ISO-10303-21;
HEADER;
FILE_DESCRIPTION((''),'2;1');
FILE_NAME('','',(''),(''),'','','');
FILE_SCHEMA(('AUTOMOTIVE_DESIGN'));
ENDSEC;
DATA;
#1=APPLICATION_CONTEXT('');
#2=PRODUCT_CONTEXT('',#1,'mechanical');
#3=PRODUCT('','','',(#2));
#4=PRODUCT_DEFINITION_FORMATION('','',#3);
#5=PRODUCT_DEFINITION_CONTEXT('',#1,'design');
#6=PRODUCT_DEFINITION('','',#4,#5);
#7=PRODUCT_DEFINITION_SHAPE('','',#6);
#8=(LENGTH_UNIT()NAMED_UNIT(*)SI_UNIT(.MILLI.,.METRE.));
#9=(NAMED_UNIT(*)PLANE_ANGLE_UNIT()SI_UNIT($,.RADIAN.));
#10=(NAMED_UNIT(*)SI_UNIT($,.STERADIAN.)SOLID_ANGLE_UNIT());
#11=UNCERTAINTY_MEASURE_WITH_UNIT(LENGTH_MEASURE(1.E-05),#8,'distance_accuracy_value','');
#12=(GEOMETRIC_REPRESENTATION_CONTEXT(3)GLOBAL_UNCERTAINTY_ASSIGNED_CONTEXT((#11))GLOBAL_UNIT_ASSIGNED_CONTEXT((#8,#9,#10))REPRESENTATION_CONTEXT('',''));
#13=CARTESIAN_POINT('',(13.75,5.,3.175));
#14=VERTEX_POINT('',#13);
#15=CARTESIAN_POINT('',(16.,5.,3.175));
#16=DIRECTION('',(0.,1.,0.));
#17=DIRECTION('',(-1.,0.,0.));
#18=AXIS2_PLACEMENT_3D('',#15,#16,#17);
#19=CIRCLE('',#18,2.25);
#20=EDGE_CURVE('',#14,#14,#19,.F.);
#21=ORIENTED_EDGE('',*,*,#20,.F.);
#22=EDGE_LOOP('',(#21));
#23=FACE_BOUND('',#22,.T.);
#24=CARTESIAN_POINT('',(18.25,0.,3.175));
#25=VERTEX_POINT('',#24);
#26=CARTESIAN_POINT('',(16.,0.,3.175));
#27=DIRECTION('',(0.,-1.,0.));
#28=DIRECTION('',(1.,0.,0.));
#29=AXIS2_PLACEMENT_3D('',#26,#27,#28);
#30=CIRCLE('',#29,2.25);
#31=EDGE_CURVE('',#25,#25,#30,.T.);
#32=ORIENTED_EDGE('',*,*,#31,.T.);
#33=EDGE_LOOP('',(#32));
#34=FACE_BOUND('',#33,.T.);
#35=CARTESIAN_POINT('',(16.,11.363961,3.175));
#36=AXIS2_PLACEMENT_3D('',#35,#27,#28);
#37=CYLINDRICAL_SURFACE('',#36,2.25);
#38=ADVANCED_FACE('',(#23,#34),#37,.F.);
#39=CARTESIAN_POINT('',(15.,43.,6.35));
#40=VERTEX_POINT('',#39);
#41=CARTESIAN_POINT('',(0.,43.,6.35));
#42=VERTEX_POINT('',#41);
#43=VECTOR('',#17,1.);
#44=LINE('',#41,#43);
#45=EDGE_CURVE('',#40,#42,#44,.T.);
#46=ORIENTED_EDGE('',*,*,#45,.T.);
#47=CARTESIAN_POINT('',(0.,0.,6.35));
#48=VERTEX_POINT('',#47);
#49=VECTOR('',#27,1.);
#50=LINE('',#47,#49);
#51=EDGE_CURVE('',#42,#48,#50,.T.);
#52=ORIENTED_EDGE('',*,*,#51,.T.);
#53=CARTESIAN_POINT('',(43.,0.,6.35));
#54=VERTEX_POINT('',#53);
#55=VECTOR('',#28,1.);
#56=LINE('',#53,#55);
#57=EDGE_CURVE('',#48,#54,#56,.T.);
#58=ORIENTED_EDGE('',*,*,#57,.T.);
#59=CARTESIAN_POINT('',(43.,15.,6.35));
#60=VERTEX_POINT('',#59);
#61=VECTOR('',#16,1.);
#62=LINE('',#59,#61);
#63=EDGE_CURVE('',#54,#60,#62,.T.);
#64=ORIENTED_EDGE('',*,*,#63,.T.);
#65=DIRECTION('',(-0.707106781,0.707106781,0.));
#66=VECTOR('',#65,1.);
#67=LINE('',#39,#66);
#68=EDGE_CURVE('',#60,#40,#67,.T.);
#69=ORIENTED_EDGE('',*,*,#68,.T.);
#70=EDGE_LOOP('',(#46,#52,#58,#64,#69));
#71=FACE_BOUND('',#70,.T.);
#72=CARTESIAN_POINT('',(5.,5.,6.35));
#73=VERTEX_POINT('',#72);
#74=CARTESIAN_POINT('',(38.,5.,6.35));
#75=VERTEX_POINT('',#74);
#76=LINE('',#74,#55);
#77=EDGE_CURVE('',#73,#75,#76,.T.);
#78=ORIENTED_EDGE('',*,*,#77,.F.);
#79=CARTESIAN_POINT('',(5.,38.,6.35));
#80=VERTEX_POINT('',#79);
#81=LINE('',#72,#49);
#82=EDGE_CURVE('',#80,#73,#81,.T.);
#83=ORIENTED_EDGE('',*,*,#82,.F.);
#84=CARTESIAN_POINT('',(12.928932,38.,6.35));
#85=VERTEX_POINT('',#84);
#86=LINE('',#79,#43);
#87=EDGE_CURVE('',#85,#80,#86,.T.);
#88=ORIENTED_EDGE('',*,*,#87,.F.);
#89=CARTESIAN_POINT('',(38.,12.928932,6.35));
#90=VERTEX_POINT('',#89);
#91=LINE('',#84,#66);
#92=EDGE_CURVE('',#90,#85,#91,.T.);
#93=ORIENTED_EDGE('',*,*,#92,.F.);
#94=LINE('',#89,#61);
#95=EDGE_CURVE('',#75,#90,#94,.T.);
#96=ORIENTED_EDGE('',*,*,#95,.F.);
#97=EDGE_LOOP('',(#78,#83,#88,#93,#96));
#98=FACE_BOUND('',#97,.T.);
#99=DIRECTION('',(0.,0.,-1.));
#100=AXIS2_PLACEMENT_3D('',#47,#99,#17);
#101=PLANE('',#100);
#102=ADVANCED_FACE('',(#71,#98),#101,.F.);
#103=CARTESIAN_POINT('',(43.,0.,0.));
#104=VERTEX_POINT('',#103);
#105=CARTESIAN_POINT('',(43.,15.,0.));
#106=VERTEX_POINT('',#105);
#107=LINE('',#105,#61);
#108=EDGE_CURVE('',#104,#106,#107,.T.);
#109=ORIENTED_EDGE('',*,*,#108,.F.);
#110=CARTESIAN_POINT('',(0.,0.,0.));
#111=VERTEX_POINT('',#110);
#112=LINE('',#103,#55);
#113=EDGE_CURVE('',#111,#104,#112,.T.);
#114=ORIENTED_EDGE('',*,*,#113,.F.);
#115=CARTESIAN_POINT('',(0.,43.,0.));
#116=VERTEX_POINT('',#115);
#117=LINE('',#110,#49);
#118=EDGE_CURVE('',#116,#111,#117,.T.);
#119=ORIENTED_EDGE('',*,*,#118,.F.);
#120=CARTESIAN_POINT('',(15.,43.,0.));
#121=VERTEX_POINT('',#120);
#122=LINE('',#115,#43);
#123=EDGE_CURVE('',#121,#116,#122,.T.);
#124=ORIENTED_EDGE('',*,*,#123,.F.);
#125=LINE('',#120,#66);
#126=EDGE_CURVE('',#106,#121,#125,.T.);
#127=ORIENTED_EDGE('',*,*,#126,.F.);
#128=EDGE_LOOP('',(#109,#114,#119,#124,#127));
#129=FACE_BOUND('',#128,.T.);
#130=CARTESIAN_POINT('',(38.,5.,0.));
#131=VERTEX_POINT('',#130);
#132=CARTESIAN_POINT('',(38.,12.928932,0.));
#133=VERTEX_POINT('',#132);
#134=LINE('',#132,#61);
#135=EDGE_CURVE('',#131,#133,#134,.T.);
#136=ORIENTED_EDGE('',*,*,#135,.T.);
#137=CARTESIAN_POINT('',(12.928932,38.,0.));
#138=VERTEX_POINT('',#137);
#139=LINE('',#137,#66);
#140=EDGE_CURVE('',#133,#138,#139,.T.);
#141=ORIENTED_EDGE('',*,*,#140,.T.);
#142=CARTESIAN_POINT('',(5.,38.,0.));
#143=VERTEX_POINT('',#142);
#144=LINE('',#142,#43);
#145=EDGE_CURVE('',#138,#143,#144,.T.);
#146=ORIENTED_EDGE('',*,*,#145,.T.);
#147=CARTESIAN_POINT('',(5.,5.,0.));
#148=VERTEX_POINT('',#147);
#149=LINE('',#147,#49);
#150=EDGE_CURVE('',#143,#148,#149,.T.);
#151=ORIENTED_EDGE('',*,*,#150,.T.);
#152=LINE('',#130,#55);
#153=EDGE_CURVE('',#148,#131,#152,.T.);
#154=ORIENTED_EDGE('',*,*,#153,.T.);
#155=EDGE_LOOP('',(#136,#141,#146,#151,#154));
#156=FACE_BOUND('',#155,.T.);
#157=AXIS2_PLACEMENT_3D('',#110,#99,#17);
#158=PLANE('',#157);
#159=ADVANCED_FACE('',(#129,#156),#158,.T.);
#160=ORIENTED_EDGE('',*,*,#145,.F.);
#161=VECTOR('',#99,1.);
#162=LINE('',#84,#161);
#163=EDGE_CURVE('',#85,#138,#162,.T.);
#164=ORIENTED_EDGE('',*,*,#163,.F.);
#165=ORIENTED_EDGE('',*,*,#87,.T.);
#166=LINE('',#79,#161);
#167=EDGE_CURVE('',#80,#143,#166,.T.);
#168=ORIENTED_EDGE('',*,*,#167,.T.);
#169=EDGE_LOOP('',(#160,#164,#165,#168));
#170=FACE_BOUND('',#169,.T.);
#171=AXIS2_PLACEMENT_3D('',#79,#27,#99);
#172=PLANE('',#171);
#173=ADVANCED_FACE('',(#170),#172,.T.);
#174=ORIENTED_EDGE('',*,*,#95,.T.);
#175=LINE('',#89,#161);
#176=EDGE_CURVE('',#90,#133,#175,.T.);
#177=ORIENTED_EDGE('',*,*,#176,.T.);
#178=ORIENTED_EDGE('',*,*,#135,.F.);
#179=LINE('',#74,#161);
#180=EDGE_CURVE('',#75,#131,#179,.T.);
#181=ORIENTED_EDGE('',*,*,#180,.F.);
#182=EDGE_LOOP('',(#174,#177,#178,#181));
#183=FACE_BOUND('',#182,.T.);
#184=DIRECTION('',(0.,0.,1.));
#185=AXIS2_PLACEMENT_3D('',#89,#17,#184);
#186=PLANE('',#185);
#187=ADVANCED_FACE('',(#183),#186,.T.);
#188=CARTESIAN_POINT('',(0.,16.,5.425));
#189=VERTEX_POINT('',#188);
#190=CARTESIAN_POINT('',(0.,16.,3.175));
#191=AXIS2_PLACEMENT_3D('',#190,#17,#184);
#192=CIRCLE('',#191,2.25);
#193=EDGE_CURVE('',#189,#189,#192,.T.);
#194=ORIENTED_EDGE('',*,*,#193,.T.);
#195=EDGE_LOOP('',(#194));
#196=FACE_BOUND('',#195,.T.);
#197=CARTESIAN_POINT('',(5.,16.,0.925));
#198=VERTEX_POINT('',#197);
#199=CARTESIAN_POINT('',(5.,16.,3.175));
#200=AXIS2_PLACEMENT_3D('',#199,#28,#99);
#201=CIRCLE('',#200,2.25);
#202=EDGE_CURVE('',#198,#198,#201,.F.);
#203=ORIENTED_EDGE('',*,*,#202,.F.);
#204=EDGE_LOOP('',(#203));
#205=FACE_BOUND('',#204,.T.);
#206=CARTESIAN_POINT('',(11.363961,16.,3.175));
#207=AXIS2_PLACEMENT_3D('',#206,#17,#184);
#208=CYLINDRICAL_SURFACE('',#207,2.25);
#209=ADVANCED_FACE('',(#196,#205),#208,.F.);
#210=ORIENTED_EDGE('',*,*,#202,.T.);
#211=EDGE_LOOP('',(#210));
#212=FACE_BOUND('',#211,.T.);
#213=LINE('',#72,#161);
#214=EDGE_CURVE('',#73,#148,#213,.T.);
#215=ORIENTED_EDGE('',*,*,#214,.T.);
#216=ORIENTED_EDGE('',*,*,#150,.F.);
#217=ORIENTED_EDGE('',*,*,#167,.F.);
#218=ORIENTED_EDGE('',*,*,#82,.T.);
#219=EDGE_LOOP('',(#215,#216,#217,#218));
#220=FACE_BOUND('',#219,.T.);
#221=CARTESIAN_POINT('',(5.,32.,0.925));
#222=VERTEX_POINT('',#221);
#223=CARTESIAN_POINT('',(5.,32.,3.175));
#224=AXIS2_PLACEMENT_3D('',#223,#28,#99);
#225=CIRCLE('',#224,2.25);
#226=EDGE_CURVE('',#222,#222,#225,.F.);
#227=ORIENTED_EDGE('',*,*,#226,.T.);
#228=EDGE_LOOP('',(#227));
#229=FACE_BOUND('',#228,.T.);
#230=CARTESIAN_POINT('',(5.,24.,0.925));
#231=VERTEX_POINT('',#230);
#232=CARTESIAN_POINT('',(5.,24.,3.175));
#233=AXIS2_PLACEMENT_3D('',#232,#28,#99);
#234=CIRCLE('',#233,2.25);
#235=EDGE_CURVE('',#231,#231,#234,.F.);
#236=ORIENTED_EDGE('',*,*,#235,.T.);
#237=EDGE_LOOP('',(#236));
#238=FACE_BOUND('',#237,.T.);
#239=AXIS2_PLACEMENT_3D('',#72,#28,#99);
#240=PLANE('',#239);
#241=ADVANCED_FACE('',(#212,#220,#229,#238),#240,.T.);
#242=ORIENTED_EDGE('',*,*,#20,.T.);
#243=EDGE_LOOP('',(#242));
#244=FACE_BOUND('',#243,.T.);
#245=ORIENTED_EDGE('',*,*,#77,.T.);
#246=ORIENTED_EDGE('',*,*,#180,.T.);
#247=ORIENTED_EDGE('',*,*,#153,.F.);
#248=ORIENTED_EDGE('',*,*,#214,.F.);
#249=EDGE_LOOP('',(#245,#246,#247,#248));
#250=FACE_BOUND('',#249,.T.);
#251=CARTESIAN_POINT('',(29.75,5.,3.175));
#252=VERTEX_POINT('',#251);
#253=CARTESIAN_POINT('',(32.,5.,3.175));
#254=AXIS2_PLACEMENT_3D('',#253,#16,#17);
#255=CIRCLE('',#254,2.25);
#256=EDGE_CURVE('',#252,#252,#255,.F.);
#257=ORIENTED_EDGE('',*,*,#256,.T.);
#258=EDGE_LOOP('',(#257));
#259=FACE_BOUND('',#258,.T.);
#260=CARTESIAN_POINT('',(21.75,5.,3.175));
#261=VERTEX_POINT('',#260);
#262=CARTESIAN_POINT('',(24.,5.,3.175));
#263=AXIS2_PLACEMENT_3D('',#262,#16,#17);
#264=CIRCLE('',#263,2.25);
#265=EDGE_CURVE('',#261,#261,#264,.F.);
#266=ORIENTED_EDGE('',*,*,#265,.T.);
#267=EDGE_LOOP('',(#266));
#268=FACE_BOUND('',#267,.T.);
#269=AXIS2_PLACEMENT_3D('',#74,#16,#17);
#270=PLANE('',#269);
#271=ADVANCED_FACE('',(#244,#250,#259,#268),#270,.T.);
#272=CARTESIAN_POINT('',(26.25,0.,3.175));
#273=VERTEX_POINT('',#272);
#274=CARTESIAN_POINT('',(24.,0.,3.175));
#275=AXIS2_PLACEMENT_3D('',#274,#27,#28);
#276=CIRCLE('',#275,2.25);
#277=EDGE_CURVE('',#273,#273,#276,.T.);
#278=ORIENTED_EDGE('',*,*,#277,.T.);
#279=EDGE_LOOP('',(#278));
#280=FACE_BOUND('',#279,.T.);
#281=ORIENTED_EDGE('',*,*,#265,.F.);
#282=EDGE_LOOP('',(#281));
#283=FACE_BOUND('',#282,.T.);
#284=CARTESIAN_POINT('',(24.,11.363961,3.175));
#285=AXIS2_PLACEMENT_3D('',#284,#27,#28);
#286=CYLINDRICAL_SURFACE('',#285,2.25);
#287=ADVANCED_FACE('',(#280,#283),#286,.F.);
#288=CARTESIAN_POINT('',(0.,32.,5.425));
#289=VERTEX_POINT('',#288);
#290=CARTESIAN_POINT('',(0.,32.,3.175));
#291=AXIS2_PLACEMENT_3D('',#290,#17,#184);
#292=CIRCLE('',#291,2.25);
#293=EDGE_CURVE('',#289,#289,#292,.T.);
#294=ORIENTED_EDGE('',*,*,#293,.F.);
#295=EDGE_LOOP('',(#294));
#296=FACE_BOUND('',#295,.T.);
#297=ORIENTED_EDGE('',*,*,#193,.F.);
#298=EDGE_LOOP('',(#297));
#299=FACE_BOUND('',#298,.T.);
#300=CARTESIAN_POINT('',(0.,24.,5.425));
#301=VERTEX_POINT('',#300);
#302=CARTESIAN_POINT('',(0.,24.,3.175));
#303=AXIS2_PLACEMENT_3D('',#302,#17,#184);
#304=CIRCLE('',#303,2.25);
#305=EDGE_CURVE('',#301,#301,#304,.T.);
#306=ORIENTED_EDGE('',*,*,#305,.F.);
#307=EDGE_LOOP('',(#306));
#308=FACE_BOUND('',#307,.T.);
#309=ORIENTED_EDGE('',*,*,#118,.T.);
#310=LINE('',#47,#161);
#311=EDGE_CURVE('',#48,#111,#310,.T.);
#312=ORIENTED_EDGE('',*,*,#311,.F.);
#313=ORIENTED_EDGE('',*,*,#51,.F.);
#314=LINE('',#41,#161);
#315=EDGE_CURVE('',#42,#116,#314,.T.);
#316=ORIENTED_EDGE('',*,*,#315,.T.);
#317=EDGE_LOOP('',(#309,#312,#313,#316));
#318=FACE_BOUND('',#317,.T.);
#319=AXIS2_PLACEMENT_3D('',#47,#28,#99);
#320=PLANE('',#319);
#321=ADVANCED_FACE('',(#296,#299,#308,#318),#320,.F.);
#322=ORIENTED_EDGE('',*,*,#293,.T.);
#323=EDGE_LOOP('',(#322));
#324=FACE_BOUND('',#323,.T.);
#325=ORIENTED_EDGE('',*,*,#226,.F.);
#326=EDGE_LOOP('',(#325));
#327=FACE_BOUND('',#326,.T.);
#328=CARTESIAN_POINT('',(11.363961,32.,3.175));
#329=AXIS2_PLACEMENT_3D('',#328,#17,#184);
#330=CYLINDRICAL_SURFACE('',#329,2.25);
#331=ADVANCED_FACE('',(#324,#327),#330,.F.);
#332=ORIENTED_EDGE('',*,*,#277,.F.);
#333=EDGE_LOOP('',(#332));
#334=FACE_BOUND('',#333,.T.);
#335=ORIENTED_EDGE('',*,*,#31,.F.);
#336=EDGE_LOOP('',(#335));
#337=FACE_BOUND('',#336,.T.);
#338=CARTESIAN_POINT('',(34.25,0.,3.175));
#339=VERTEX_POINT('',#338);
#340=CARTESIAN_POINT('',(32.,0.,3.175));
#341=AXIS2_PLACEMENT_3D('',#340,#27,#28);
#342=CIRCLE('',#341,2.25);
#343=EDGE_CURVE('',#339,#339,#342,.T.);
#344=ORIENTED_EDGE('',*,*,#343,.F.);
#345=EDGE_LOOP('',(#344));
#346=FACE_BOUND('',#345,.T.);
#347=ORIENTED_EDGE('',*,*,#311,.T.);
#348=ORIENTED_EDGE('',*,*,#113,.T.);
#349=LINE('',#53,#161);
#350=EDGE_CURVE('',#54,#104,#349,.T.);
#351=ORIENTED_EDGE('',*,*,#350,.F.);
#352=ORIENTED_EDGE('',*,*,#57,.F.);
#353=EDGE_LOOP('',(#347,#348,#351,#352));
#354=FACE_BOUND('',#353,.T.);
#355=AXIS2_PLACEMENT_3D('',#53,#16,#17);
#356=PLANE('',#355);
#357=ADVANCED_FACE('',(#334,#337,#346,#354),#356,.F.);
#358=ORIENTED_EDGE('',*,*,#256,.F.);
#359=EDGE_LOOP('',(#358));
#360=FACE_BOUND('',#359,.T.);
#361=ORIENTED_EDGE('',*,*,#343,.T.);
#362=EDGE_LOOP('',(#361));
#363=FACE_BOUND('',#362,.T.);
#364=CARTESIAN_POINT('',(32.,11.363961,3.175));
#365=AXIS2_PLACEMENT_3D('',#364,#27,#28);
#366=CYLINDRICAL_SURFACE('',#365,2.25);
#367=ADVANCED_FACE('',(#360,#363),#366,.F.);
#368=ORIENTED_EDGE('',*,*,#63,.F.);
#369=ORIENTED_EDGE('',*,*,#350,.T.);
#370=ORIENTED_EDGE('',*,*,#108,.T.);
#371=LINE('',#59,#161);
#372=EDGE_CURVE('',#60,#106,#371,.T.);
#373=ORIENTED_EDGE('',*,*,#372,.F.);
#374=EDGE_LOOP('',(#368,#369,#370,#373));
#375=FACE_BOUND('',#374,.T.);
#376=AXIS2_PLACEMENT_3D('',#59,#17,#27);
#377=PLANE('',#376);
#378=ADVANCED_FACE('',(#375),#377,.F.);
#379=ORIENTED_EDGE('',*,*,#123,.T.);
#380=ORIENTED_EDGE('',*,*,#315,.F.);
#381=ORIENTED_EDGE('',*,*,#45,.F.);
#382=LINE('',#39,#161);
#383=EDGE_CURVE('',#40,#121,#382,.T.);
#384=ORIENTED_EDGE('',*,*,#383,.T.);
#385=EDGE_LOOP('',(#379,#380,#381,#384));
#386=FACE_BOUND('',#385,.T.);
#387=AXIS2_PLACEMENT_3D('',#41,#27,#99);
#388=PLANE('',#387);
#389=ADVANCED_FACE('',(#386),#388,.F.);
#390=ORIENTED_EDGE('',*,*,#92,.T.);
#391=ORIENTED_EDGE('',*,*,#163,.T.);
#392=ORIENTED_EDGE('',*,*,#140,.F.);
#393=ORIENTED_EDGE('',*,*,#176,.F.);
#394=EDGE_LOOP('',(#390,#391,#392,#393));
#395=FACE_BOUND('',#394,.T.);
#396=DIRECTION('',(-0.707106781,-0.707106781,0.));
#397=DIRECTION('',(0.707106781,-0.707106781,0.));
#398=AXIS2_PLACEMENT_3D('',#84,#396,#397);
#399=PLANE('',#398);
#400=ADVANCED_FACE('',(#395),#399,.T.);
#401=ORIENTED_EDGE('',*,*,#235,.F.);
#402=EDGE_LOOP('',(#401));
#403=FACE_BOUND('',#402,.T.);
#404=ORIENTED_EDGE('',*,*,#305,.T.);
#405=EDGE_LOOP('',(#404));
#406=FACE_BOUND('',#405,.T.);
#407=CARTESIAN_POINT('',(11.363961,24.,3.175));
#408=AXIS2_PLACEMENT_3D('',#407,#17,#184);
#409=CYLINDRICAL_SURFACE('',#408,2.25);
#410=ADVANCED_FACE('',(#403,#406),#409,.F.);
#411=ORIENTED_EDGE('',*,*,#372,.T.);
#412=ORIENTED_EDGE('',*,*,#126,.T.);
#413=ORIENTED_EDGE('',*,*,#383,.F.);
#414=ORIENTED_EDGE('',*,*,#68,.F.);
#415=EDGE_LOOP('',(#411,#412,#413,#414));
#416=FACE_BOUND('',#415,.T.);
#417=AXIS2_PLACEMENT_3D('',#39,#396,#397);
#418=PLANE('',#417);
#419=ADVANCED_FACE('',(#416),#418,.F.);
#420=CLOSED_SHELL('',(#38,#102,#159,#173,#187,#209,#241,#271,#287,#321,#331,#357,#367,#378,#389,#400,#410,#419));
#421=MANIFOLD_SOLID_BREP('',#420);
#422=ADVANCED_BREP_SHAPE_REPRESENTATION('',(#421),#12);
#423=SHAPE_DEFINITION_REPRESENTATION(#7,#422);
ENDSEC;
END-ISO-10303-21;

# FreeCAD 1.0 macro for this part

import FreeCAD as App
import Part
import Sketcher
Q = App.Units.Quantity

doc = App.newDocument("Part")
body = doc.addObject("PartDesign::Body", "Body")

sketch1 = body.newObject("Sketcher::SketchObject", "Sketch")
sketch1.AttachmentSupport = (doc.getObject("XY_Plane"), [""])
sketch1.MapMode = "FlatFace"
sketch1.addGeometry([
    Part.LineSegment(App.Vector(0, 43, 0), App.Vector(0, 0, 0)),
    Part.LineSegment(App.Vector(0, 0, 0), App.Vector(43, 0, 0)),
    Part.LineSegment(App.Vector(43, 0, 0), App.Vector(43, 15, 0)),
    Part.LineSegment(App.Vector(43, 15, 0), App.Vector(15, 43, 0)),
    Part.LineSegment(App.Vector(15, 43, 0), App.Vector(0, 43, 0)),
    Part.LineSegment(App.Vector(38, 5, 0), App.Vector(5, 5, 0)),
    Part.LineSegment(App.Vector(5, 5, 0), App.Vector(5, 38, 0)),
    Part.LineSegment(App.Vector(5, 38, 0), App.Vector(13, 38, 0)),
    Part.LineSegment(App.Vector(13, 38, 0), App.Vector(38, 13, 0)),
    Part.LineSegment(App.Vector(38, 13, 0), App.Vector(38, 5, 0)),
], False)
sketch1.addConstraint([
    Sketcher.Constraint("Coincident", 0, 2, 1, 1),
    Sketcher.Constraint("Coincident", 1, 2, 2, 1),
    Sketcher.Constraint("Coincident", 2, 2, 3, 1),
    Sketcher.Constraint("Coincident", 3, 2, 4, 1),
    Sketcher.Constraint("Coincident", 4, 2, 0, 1),
    Sketcher.Constraint("Coincident", 5, 2, 6, 1),
    Sketcher.Constraint("Coincident", 6, 2, 7, 1),
    Sketcher.Constraint("Coincident", 7, 2, 8, 1),
    Sketcher.Constraint("Coincident", 8, 2, 9, 1),
    Sketcher.Constraint("Coincident", 9, 2, 5, 1),
    Sketcher.Constraint("Vertical", 0),
    Sketcher.Constraint("Horizontal", 1),
    Sketcher.Constraint("Vertical", 2),
    Sketcher.Constraint("Horizontal", 4),
    Sketcher.Constraint("Horizontal", 5),
    Sketcher.Constraint("Vertical", 6),
    Sketcher.Constraint("Horizontal", 7),
    Sketcher.Constraint("Vertical", 9),
    Sketcher.Constraint("Coincident", 0, 2, -1, 1),
    Sketcher.Constraint("Parallel", 3, 8),
    Sketcher.Constraint("Equal", 1, 0),
    Sketcher.Constraint("Equal", 4, 2),
    Sketcher.Constraint("Equal", 5, 6),
    Sketcher.Constraint("DistanceX", 1, 1, 1, 2, Q("43 mm")),
    Sketcher.Constraint("DistanceX", 4, 2, 4, 1, Q("15 mm")),
    Sketcher.Constraint("DistanceX", 5, 2, 5, 1, Q("33 mm")),
    Sketcher.Constraint("DistanceX", -1, 1, 5, 2, Q("5 mm")),
    Sketcher.Constraint("DistanceY", -1, 1, 5, 2, Q("5 mm")),
    Sketcher.Constraint("DistanceX", 7, 1, 7, 2, Q("7.928932 mm")),
])
pad1 = body.newObject("PartDesign::Pad", "Pad")
pad1.Profile = sketch1
pad1.Length = 6.35

sketch2 = body.newObject("Sketcher::SketchObject", "Sketch001")
sketch2.AttachmentSupport = (doc.getObject("XZ_Plane"), [""])
sketch2.MapMode = "FlatFace"
sketch2.addGeometry([
    Part.Circle(App.Vector(16, 3.2, 0), App.Vector(0, 0, 1), 2.2),
    Part.Circle(App.Vector(24, 3.2, 0), App.Vector(0, 0, 1), 2.2),
    Part.Circle(App.Vector(32, 3.2, 0), App.Vector(0, 0, 1), 2.2),
], False)
sketch2.addConstraint([
    Sketcher.Constraint("Equal", 0, 1),
    Sketcher.Constraint("Equal", 1, 2),
    Sketcher.Constraint("Horizontal", 0, 3, 1, 3),
    Sketcher.Constraint("Horizontal", 1, 3, 2, 3),
    Sketcher.Constraint("Diameter", 0, Q("4.5 mm")),
    Sketcher.Constraint("DistanceX", -1, 1, 0, 3, Q("16 mm")),
    Sketcher.Constraint("DistanceX", -1, 1, 1, 3, Q("24 mm")),
    Sketcher.Constraint("DistanceX", -1, 1, 2, 3, Q("32 mm")),
    Sketcher.Constraint("DistanceY", -1, 1, 0, 3, Q("3.175 mm")),
])
pocket1 = body.newObject("PartDesign::Pocket", "Pocket")
pocket1.Profile = sketch2
pocket1.Length = 5

sketch3 = body.newObject("Sketcher::SketchObject", "Sketch002")
sketch3.AttachmentSupport = (doc.getObject("YZ_Plane"), [""])
sketch3.MapMode = "FlatFace"
sketch3.addGeometry([
    Part.Circle(App.Vector(16, 3.2, 0), App.Vector(0, 0, 1), 2.2),
    Part.Circle(App.Vector(24, 3.2, 0), App.Vector(0, 0, 1), 2.2),
    Part.Circle(App.Vector(32, 3.2, 0), App.Vector(0, 0, 1), 2.2),
], False)
sketch3.addConstraint([
    Sketcher.Constraint("Equal", 0, 1),
    Sketcher.Constraint("Equal", 1, 2),
    Sketcher.Constraint("Horizontal", 0, 3, 1, 3),
    Sketcher.Constraint("Horizontal", 1, 3, 2, 3),
    Sketcher.Constraint("Diameter", 0, Q("4.5 mm")),
    Sketcher.Constraint("DistanceX", -1, 1, 0, 3, Q("16 mm")),
    Sketcher.Constraint("DistanceX", -1, 1, 1, 3, Q("24 mm")),
    Sketcher.Constraint("DistanceX", -1, 1, 2, 3, Q("32 mm")),
    Sketcher.Constraint("DistanceY", -1, 1, 0, 3, Q("3.175 mm")),
])
pocket2 = body.newObject("PartDesign::Pocket", "Pocket001")
pocket2.Profile = sketch3
pocket2.Length = 5
pocket2.Reversed = True

doc.recompute()
